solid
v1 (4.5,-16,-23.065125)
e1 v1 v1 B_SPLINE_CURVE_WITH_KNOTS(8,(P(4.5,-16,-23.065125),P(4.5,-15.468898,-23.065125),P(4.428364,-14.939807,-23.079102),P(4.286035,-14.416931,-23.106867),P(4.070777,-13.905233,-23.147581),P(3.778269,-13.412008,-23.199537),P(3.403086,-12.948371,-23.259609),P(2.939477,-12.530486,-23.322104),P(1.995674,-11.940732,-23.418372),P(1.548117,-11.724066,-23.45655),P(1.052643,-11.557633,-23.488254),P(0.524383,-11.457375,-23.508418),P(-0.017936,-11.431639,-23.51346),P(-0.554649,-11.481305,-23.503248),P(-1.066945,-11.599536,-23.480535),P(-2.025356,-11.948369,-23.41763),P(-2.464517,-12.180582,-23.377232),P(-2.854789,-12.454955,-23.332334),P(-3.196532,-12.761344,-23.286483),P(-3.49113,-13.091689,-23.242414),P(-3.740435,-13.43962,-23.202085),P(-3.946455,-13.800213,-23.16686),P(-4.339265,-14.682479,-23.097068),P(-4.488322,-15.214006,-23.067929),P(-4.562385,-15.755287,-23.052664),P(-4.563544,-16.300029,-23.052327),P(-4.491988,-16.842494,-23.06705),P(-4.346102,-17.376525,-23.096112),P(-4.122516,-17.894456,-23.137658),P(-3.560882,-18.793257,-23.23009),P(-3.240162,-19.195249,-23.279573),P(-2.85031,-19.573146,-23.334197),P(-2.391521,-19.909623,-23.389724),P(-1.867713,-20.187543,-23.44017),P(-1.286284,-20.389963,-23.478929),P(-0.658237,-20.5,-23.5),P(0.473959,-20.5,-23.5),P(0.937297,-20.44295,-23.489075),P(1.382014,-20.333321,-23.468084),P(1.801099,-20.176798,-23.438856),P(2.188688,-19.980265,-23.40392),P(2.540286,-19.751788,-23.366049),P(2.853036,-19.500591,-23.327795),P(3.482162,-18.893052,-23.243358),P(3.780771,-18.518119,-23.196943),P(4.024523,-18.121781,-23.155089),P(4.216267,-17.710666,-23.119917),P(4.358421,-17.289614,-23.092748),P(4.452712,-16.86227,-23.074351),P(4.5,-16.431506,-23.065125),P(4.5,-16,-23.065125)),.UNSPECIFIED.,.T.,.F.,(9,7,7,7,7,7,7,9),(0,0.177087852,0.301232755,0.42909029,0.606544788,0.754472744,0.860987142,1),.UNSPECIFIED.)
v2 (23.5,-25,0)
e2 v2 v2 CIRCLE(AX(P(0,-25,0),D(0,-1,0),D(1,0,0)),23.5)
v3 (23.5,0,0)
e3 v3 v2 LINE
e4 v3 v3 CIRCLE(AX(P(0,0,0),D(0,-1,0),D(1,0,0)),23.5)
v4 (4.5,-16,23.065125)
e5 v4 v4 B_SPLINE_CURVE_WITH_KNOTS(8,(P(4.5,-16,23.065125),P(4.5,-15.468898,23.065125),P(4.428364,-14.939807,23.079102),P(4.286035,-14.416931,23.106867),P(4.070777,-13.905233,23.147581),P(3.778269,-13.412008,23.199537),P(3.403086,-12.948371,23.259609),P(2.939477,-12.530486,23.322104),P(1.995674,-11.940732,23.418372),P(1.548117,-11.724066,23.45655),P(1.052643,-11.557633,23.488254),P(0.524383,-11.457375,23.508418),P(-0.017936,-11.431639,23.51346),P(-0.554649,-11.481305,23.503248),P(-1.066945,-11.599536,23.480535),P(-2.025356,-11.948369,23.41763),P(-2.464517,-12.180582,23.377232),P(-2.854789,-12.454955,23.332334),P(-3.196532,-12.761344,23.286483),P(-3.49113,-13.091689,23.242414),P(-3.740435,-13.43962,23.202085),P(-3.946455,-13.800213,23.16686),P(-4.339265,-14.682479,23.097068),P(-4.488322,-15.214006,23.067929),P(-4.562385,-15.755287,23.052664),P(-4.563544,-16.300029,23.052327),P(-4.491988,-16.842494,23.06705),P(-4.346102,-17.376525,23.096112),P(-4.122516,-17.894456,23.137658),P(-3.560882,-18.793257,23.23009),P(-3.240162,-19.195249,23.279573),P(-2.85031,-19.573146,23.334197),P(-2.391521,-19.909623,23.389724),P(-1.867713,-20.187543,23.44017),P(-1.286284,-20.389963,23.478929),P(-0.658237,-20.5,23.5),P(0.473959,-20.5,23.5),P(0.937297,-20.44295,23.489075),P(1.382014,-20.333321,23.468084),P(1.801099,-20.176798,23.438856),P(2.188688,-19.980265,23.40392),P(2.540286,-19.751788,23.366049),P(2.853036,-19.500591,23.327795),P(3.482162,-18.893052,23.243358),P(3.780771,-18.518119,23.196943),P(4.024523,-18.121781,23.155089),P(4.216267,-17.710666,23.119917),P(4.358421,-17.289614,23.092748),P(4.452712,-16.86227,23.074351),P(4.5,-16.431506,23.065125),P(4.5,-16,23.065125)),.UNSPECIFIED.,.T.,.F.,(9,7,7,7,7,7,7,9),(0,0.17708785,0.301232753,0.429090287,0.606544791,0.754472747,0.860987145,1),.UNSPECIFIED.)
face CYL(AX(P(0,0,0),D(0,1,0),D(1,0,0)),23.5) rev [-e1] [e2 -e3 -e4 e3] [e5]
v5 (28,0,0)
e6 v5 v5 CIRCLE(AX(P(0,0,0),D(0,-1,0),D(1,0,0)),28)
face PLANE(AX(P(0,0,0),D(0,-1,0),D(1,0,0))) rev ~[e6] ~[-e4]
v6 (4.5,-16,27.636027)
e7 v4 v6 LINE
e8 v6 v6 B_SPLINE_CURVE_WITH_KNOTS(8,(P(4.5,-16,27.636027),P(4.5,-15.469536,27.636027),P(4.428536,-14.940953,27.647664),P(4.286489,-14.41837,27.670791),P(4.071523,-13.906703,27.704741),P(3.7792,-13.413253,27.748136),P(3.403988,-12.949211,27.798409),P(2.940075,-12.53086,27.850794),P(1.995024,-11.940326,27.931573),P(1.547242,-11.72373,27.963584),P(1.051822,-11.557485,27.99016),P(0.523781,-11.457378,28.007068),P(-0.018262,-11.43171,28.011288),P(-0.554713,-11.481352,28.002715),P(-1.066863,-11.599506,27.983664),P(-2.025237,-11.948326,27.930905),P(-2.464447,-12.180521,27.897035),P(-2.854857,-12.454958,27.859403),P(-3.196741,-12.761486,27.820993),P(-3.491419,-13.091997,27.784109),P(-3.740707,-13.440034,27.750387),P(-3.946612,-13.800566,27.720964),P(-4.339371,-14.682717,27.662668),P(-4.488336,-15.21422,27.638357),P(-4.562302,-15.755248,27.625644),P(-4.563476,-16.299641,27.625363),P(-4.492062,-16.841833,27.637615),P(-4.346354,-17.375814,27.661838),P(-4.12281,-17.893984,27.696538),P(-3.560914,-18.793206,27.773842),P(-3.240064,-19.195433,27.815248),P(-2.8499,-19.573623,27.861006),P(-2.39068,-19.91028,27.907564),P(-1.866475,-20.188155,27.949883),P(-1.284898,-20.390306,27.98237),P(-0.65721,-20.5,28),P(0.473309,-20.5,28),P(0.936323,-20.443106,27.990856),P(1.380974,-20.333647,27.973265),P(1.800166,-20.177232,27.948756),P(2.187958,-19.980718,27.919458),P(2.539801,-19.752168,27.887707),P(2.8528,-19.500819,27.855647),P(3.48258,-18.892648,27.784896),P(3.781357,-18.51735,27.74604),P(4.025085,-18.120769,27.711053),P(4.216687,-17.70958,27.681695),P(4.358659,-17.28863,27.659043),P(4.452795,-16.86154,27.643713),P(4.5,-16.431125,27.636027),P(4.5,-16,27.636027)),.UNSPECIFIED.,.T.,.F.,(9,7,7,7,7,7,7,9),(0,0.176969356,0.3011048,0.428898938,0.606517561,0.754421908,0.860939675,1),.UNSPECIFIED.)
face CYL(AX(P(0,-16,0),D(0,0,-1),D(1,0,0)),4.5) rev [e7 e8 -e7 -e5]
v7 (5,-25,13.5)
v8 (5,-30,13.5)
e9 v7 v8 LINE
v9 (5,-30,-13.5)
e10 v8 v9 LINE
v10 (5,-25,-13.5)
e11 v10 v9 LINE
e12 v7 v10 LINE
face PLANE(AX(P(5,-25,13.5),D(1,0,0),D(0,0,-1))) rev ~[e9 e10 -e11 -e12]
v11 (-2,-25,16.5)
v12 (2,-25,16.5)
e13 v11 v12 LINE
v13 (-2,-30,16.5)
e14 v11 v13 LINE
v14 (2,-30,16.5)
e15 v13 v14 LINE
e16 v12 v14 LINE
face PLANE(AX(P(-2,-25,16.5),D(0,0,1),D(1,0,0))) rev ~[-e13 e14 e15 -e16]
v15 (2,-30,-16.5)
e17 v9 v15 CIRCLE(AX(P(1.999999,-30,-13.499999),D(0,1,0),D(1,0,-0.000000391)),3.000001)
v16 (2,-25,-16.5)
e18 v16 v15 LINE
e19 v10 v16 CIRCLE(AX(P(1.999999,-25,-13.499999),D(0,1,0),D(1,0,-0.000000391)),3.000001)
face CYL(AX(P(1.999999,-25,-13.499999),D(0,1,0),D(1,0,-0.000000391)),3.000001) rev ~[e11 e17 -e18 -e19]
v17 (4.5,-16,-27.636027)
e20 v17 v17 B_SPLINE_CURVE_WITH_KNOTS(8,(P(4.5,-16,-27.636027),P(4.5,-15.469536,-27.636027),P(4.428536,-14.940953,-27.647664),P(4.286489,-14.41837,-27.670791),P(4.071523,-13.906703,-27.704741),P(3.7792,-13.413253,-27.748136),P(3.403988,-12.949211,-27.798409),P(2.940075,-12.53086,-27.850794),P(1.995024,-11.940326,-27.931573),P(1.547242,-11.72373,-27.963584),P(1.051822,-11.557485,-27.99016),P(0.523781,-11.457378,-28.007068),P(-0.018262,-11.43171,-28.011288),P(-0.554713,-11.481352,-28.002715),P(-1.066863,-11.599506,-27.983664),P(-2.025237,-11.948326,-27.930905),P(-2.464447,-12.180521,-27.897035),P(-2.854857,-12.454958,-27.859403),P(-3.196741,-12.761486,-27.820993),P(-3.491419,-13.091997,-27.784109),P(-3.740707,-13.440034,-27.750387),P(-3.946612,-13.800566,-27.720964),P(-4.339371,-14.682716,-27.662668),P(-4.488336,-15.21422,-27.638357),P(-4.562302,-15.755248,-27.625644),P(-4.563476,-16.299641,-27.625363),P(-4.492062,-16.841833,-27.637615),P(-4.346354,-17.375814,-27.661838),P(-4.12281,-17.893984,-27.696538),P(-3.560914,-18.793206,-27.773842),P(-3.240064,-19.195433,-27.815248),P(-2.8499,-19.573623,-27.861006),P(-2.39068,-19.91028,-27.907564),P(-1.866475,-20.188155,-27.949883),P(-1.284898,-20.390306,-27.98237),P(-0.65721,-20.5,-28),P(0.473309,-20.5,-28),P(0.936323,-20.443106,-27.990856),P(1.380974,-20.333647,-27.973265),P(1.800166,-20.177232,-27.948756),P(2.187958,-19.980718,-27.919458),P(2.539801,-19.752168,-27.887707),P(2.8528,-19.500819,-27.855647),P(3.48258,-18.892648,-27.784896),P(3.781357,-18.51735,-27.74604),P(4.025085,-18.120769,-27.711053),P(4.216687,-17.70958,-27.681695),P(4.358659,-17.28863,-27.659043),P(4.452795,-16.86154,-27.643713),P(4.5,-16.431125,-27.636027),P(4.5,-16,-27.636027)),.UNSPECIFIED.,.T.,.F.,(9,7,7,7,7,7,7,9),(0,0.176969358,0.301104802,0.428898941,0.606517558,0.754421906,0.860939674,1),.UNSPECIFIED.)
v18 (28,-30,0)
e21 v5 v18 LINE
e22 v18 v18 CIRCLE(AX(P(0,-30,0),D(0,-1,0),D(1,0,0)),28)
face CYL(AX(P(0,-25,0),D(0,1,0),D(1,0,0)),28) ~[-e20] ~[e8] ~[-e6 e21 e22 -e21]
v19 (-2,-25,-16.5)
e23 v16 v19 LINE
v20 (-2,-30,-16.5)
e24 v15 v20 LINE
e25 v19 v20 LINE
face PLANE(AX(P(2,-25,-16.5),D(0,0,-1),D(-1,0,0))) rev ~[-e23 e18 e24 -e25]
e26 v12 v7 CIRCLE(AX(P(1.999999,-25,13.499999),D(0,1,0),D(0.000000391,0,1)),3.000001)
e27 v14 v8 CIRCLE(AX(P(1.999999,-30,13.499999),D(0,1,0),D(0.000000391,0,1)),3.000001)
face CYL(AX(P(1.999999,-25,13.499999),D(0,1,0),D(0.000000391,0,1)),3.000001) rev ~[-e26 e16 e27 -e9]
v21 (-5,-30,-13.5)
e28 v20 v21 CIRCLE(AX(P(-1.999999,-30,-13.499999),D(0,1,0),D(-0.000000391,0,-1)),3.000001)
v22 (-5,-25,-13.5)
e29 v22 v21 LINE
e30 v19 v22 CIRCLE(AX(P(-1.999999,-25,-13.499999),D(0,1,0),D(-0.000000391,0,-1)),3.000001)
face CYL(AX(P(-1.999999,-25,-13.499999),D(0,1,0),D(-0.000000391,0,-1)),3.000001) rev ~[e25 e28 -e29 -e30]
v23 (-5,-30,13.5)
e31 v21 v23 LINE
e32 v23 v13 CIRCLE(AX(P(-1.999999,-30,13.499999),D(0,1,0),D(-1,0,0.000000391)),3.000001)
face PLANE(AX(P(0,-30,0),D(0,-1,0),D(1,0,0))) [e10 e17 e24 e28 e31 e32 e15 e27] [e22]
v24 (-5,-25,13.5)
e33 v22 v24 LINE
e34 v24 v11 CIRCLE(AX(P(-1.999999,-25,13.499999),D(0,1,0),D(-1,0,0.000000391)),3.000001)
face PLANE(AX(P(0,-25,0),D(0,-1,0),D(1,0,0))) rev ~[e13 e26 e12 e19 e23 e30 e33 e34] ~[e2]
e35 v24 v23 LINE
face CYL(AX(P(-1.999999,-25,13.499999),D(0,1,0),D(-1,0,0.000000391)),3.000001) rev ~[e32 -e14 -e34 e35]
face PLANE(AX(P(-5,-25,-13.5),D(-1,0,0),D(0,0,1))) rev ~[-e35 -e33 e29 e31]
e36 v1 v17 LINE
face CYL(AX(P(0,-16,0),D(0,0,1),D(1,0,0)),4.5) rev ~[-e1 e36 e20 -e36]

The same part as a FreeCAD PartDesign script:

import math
import FreeCAD as App
import Part
import Sketcher

V = App.Vector

doc = App.newDocument("Part")
body = doc.addObject("PartDesign::Body", "Body")

# Sketch on XZ plane
sketch1 = body.newObject("Sketcher::SketchObject", "Sketch")
sketch1.AttachmentSupport = (doc.getObject("XZ_Plane"), [""])
sketch1.MapMode = "FlatFace"
sketch1.addGeometry(Part.Circle(V(0, 0, 0), V(0, 0, 1), 28), False)
sketch1.addGeometry(Part.Circle(V(0, 0, 0), V(0, 0, 1), 24), False)
sketch1.addConstraint(Sketcher.Constraint("Coincident", 0, 3, -1, 1))
sketch1.addConstraint(Sketcher.Constraint("Coincident", 1, 3, -1, 1))
sketch1.addConstraint(Sketcher.Constraint("Diameter", 0, 56.0))
sketch1.addConstraint(Sketcher.Constraint("Diameter", 1, 47.0))
pad1 = body.newObject("PartDesign::Pad", "Pad")
pad1.Profile = sketch1
pad1.Length = 25

# Sketch on XZ plane
sketch2 = body.newObject("Sketcher::SketchObject", "Sketch001")
sketch2.AttachmentSupport = (doc.getObject("XZ_Plane"), [""])
sketch2.MapMode = "FlatFace"
sketch2.AttachmentOffset = App.Placement(V(0, 0, 25), App.Rotation())
sketch2.addGeometry(Part.Circle(V(0, 0, 0), V(0, 0, 1), 28), False)
sketch2.addGeometry(Part.ArcOfCircle(Part.Circle(V(-2, -13.5, 0), V(0, 0, 1), 3), math.radians(-180), math.radians(-90)), False)
sketch2.addGeometry(Part.LineSegment(V(-5, -13.5, 0), V(-5, 13.5, 0)), False)
sketch2.addGeometry(Part.ArcOfCircle(Part.Circle(V(-2, 13.5, 0), V(0, 0, 1), 3), math.radians(90), math.radians(180)), False)
sketch2.addGeometry(Part.LineSegment(V(-2, 16.5, 0), V(2, 16.5, 0)), False)
sketch2.addGeometry(Part.ArcOfCircle(Part.Circle(V(2, 13.5, 0), V(0, 0, 1), 3), math.radians(0), math.radians(90)), False)
sketch2.addGeometry(Part.LineSegment(V(5, 13.5, 0), V(5, -13.5, 0)), False)
sketch2.addGeometry(Part.ArcOfCircle(Part.Circle(V(2, -13.5, 0), V(0, 0, 1), 3), math.radians(-90), math.radians(0)), False)
sketch2.addGeometry(Part.LineSegment(V(2, -16.5, 0), V(-2, -16.5, 0)), False)
sketch2.addConstraint(Sketcher.Constraint("Tangent", 1, 1, 2, 1))
sketch2.addConstraint(Sketcher.Constraint("Tangent", 2, 2, 3, 2))
sketch2.addConstraint(Sketcher.Constraint("Tangent", 3, 1, 4, 1))
sketch2.addConstraint(Sketcher.Constraint("Tangent", 4, 2, 5, 2))
sketch2.addConstraint(Sketcher.Constraint("Tangent", 5, 1, 6, 1))
sketch2.addConstraint(Sketcher.Constraint("Tangent", 6, 2, 7, 2))
sketch2.addConstraint(Sketcher.Constraint("Tangent", 7, 1, 8, 1))
sketch2.addConstraint(Sketcher.Constraint("Tangent", 8, 2, 1, 2))
sketch2.addConstraint(Sketcher.Constraint("Vertical", 2))
sketch2.addConstraint(Sketcher.Constraint("Horizontal", 4))
sketch2.addConstraint(Sketcher.Constraint("Vertical", 6))
sketch2.addConstraint(Sketcher.Constraint("Horizontal", 8))
sketch2.addConstraint(Sketcher.Constraint("Coincident", 0, 3, -1, 1))
sketch2.addConstraint(Sketcher.Constraint("Equal", 1, 3))
sketch2.addConstraint(Sketcher.Constraint("Equal", 3, 5))
sketch2.addConstraint(Sketcher.Constraint("Equal", 5, 7))
sketch2.addConstraint(Sketcher.Constraint("Symmetric", 1, 3, 5, 3, -1, 1))
sketch2.addConstraint(Sketcher.Constraint("Diameter", 0, 56.0))
sketch2.addConstraint(Sketcher.Constraint("Radius", 1, 3.000001))
sketch2.addConstraint(Sketcher.Constraint("DistanceX", 4, 1, 4, 2, 4.0))
sketch2.addConstraint(Sketcher.Constraint("DistanceY", 2, 1, 2, 2, 27.0))
pad2 = body.newObject("PartDesign::Pad", "Pad001")
pad2.Profile = sketch2
pad2.Length = 5

# Sketch on XY plane
sketch3 = body.newObject("Sketcher::SketchObject", "Sketch002")
sketch3.AttachmentSupport = (doc.getObject("XY_Plane"), [""])
sketch3.MapMode = "FlatFace"
sketch3.addGeometry(Part.Circle(V(0, -16, 0), V(0, 0, 1), 4.5), False)
sketch3.addConstraint(Sketcher.Constraint("PointOnObject", 0, 3, -2))
sketch3.addConstraint(Sketcher.Constraint("Diameter", 0, 9.0))
sketch3.addConstraint(Sketcher.Constraint("DistanceY", 0, 3, -1, 1, 16.0))
pocket1 = body.newObject("PartDesign::Pocket", "Pocket")
pocket1.Profile = sketch3
pocket1.Type = "ThroughAll"
pocket1.Midplane = True

doc.recompute()
